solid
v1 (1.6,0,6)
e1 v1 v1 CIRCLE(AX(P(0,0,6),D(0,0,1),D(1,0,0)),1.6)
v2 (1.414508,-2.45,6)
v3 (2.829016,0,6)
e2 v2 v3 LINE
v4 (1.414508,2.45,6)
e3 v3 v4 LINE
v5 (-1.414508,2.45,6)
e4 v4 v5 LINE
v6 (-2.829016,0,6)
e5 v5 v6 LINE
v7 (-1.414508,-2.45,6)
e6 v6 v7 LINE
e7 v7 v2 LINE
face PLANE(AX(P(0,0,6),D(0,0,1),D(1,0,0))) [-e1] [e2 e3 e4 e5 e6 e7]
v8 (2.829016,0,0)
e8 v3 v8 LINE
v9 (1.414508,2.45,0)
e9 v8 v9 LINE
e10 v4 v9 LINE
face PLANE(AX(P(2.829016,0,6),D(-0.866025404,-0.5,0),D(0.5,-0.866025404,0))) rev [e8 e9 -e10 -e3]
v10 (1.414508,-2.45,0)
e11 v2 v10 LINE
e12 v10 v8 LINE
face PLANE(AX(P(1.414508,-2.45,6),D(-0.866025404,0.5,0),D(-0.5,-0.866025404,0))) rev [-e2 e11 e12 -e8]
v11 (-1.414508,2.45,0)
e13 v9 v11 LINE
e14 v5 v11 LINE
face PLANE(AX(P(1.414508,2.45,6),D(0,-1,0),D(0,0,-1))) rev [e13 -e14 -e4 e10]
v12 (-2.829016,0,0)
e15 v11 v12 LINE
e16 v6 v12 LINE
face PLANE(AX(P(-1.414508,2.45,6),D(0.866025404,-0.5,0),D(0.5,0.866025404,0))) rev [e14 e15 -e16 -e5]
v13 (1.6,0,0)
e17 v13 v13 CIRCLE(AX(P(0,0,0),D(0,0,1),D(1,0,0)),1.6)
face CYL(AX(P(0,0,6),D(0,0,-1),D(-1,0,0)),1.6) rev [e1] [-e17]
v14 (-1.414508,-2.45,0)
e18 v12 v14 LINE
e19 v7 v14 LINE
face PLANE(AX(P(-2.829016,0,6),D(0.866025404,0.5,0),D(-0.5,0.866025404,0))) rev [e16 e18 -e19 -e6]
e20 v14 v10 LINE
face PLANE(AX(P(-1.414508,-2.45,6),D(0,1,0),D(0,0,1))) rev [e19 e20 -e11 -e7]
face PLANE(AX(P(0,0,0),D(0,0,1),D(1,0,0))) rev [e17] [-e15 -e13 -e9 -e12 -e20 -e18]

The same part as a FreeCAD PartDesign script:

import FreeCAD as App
import Part
import Sketcher
from FreeCAD import Vector
Q = App.Units.Quantity

doc = App.newDocument("Part")
body = doc.addObject("PartDesign::Body", "Body")

sketch1 = body.newObject("Sketcher::SketchObject", "Sketch")
sketch1.AttachmentSupport = (doc.getObject("XY_Plane"), [""])
sketch1.MapMode = "FlatFace"
sketch1.addGeometry([
    Part.LineSegment(Vector(2.829016, 0, 0), Vector(1.414508, 2.45, 0)),
    Part.LineSegment(Vector(1.414508, 2.45, 0), Vector(-1.414508, 2.45, 0)),
    Part.LineSegment(Vector(-1.414508, 2.45, 0), Vector(-2.829016, 0, 0)),
    Part.LineSegment(Vector(-2.829016, 0, 0), Vector(-1.414508, -2.45, 0)),
    Part.LineSegment(Vector(-1.414508, -2.45, 0), Vector(1.414508, -2.45, 0)),
    Part.LineSegment(Vector(1.414508, -2.45, 0), Vector(2.829016, 0, 0)),
    Part.Circle(Vector(0, 0, 0), Vector(0, 0, 1), 1.6),
], False)
sketch1.addConstraint([
    Sketcher.Constraint("Coincident", 0, 2, 1, 1),
    Sketcher.Constraint("Coincident", 1, 2, 2, 1),
    Sketcher.Constraint("Coincident", 2, 2, 3, 1),
    Sketcher.Constraint("Coincident", 3, 2, 4, 1),
    Sketcher.Constraint("Coincident", 4, 2, 5, 1),
    Sketcher.Constraint("Coincident", 5, 2, 0, 1),
    Sketcher.Constraint("Horizontal", 1),
    Sketcher.Constraint("Horizontal", 4),
    Sketcher.Constraint("Coincident", 6, 3, -1, 1),
    Sketcher.Constraint("Symmetric", 0, 2, 3, 2, -1, 1),
    Sketcher.Constraint("Symmetric", 2, 2, 5, 2, -1, 1),
    Sketcher.Constraint("PointOnObject", 2, 2, -1),
    Sketcher.Constraint("Parallel", 2, 5),
    Sketcher.Constraint("Vertical", 1, 2, 3, 2),
    Sketcher.Constraint("Diameter", 6, 3.2),
    Sketcher.Constraint("Angle", 0, Q("120 deg")),
    Sketcher.Constraint("DistanceY", 3, 2, 1, 2, 4.9),
    Sketcher.Constraint("DistanceX", 1, 2, 1, 1, 2.829016),
])
pad1 = body.newObject("PartDesign::Pad", "Pad")
pad1.Profile = sketch1
pad1.Length = 6

doc.recompute()
